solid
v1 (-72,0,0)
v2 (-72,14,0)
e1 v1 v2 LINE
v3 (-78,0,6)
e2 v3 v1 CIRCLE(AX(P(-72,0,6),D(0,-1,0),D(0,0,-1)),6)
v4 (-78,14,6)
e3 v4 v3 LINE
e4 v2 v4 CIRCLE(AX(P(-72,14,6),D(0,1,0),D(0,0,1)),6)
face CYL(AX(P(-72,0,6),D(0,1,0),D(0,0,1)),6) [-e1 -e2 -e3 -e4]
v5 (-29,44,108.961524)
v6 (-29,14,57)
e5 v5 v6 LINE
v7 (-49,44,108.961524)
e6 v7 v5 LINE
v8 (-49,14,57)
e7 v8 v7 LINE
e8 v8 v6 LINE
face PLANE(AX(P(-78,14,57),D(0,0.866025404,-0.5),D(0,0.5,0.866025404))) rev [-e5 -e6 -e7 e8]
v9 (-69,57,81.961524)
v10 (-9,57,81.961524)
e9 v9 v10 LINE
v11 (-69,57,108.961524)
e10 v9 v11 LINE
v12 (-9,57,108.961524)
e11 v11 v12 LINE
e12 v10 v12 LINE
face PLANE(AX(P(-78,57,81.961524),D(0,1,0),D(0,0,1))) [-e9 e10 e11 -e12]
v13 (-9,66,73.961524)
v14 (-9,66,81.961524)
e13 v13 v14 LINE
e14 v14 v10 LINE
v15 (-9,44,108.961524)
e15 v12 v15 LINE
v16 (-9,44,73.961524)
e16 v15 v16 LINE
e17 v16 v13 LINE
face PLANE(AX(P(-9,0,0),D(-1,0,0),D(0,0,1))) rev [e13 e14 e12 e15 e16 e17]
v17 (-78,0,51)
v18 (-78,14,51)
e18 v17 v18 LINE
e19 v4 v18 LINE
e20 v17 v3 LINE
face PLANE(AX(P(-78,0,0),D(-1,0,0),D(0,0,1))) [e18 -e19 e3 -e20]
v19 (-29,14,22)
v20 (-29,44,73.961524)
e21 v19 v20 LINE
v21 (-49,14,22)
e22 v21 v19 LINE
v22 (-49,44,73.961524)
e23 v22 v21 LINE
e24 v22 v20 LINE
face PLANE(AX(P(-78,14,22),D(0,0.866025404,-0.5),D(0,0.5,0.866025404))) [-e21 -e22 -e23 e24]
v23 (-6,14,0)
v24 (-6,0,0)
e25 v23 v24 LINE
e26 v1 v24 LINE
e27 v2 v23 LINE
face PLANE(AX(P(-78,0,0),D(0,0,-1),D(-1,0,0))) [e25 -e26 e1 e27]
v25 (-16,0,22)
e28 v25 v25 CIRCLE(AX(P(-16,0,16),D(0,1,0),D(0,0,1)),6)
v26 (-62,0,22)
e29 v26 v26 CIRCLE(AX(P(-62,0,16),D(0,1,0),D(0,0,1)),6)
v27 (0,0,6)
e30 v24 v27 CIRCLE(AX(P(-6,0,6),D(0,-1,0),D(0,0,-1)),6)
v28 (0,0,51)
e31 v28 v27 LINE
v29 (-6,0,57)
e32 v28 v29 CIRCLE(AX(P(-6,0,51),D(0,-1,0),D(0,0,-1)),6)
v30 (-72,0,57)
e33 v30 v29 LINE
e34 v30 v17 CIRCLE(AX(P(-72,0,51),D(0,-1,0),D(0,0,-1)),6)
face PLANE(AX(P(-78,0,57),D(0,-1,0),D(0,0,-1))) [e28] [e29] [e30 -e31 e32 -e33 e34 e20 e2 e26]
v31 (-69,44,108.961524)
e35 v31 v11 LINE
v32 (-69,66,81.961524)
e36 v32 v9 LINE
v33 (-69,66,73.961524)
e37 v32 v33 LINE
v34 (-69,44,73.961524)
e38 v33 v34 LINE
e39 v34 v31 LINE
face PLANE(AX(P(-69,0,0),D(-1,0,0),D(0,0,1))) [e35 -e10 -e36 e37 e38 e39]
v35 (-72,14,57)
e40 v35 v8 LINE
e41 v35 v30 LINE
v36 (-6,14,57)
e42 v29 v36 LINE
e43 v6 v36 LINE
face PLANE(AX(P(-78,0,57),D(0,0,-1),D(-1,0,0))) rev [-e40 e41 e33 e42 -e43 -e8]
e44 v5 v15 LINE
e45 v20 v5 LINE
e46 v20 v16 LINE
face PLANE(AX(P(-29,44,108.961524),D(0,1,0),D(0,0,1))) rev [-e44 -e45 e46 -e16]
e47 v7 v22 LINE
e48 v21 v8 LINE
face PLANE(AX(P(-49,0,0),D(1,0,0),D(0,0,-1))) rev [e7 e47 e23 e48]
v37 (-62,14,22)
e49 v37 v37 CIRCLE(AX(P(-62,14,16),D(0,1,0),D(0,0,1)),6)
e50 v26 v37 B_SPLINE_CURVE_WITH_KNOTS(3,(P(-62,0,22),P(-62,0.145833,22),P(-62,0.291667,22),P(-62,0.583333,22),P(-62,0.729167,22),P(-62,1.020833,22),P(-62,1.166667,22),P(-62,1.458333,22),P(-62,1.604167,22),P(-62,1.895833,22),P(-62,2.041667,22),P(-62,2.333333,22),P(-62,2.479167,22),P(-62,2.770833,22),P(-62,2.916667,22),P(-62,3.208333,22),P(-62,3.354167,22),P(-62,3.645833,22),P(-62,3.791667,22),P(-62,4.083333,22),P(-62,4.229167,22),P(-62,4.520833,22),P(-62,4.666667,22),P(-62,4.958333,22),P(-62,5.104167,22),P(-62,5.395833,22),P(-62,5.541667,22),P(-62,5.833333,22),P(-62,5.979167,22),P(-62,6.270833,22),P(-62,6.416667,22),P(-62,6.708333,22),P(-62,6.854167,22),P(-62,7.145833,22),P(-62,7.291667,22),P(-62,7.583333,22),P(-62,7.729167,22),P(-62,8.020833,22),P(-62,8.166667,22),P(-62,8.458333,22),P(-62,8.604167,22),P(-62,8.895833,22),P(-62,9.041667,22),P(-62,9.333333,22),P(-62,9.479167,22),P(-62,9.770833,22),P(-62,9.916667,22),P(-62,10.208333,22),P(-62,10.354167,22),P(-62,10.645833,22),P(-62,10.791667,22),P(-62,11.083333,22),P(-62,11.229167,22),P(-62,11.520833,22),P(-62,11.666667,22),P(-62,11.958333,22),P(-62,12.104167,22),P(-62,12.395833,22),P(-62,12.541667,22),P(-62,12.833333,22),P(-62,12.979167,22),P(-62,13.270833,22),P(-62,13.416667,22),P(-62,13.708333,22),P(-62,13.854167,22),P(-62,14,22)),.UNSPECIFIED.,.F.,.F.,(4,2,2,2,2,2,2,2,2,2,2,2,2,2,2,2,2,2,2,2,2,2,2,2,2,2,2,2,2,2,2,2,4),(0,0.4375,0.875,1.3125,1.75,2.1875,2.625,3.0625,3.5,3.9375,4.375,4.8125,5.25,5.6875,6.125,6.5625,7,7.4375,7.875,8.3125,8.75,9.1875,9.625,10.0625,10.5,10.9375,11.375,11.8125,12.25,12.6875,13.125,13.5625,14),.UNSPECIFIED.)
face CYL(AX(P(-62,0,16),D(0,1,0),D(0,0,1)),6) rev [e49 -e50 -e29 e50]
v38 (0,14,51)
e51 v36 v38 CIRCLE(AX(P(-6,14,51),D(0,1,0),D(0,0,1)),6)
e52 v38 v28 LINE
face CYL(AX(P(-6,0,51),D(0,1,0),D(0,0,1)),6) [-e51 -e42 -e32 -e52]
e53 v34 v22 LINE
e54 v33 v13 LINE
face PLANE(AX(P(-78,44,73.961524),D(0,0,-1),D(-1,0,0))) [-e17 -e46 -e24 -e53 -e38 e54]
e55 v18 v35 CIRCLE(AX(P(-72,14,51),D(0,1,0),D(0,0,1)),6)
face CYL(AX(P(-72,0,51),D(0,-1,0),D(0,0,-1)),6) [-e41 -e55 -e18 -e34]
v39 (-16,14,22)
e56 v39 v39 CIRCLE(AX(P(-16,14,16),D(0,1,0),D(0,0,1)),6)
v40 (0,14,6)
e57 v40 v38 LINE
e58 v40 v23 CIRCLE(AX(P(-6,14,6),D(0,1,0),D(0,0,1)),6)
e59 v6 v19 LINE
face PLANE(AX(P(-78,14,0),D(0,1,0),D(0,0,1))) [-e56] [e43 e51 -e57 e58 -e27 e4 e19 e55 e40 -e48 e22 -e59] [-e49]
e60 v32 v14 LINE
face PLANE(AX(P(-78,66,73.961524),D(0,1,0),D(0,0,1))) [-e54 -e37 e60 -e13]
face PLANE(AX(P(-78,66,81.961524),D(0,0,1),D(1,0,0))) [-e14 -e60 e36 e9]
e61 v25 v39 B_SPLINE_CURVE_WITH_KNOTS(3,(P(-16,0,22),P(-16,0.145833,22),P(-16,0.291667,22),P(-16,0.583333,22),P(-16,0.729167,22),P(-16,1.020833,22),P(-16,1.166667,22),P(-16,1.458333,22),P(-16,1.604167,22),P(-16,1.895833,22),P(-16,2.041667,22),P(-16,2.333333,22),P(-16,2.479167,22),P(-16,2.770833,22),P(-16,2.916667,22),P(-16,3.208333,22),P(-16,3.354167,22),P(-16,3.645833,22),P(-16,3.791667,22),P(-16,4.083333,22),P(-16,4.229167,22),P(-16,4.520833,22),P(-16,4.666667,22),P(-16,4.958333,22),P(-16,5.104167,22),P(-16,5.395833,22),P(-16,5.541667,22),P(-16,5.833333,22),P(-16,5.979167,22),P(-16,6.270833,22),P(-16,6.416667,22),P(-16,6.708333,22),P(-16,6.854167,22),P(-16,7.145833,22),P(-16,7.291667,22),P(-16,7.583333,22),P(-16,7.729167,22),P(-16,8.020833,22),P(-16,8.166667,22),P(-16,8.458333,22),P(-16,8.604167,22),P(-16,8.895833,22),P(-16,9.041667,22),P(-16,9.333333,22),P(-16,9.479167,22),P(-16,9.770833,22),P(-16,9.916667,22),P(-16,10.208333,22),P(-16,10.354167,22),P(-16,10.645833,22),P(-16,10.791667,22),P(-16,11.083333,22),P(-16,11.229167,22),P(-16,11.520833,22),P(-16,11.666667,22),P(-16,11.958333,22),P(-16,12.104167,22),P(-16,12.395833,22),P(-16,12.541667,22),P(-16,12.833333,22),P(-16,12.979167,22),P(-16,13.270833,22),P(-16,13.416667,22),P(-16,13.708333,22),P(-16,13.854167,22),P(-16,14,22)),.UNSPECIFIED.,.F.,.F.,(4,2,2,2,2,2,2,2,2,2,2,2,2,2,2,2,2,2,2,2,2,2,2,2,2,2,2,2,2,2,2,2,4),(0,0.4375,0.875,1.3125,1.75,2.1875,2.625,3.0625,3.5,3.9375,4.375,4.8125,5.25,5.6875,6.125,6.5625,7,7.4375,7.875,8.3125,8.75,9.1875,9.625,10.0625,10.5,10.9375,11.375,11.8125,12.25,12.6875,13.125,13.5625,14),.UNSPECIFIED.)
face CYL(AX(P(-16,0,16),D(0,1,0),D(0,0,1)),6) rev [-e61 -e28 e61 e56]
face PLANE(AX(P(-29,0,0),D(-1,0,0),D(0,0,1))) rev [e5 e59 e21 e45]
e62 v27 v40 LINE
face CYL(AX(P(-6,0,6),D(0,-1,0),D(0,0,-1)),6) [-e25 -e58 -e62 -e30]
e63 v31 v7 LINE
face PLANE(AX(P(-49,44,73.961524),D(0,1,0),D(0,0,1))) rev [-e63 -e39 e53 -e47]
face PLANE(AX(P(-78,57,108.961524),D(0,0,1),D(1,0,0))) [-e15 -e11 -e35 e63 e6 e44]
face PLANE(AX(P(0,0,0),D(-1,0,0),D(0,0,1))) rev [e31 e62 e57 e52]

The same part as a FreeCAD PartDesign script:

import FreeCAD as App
import Part
import Sketcher
from FreeCAD import Vector
Q = App.Units.Quantity


def edges_at(feature, points):
    """Names of the edges that pass closest to the given points."""
    edges = feature.Shape.Edges
    near = lambda p: min(range(len(edges)), key=lambda i: edges[i].distToShape(Part.Vertex(*p))[0])
    return sorted({f"Edge{near(p) + 1}" for p in points})


def add_polygon(sketch, points):
    """Adds a closed chain of lines whose ends are joined by coincident constraints."""
    first, n = sketch.GeometryCount, len(points)
    for a, b in zip(points, points[1:] + points[:1]):
        sketch.addGeometry(Part.LineSegment(App.Vector(*a, 0), App.Vector(*b, 0)), False)
    for i in range(n):
        sketch.addConstraint(Sketcher.Constraint("Coincident", first + i, 2, first + (i + 1) % n, 1))

doc = App.newDocument("Part")
body = doc.addObject("PartDesign::Body", "Body")

# Sketch on YZ plane
sketch1 = body.newObject("Sketcher::SketchObject", "Sketch")
sketch1.AttachmentSupport = (doc.getObject("YZ_Plane"), [""])
sketch1.MapMode = "FlatFace"
add_polygon(sketch1, [(0, 57), (0, 0), (14, 0), (14, 22), (44, 73.961524), (66, 73.961524), (66, 81.961524), (57, 81.961524), (57, 108.961524), (44, 108.961524), (14, 57)])  # lines 0-10
sketch1.addConstraint([
    Sketcher.Constraint("Vertical", 0),
    Sketcher.Constraint("Horizontal", 1),
    Sketcher.Constraint("Vertical", 2),
    Sketcher.Constraint("Horizontal", 4),
    Sketcher.Constraint("Vertical", 5),
    Sketcher.Constraint("Horizontal", 6),
    Sketcher.Constraint("Vertical", 7),
    Sketcher.Constraint("Horizontal", 8),
    Sketcher.Constraint("Horizontal", 10),
    Sketcher.Constraint("Coincident", 0, 2, -1, 1),
    Sketcher.Constraint("Parallel", 3, 9),
    Sketcher.Constraint("Vertical", 3, 2, 8, 2),
    Sketcher.Constraint("Vertical", 2, 2, 9, 2),
    Sketcher.Constraint("Equal", 4, 2),
    Sketcher.Constraint("DistanceX", 1, 1, 1, 2, Q("14 mm")),
    Sketcher.Constraint("DistanceX", 4, 1, 4, 2, Q("22 mm")),
    Sketcher.Constraint("DistanceX", 6, 2, 6, 1, Q("9 mm")),
    Sketcher.Constraint("DistanceY", 0, 2, 0, 1, Q("57 mm")),
    Sketcher.Constraint("DistanceY", 5, 1, 5, 2, Q("8 mm")),
    Sketcher.Constraint("Angle", 3, Q("60 deg")),
    Sketcher.Constraint("Distance", 3, Q("60 mm")),
])
pad1 = body.newObject("PartDesign::Pad", "Pad")
pad1.Profile = sketch1
pad1.Length = 78
pad1.Reversed = True

# Sketch on YZ plane
sketch2 = body.newObject("Sketcher::SketchObject", "Sketch001")
sketch2.AttachmentSupport = (doc.getObject("YZ_Plane"), [""])
sketch2.MapMode = "FlatFace"
add_polygon(sketch2, [(14, 57), (14, 22), (44, 73.961524), (44, 108.961524)])  # lines 0-3
sketch2.addConstraint([
    Sketcher.Constraint("Vertical", 0),
    Sketcher.Constraint("Vertical", 2),
    Sketcher.Constraint("Parallel", 1, 3),
    Sketcher.Constraint("DistanceY", 0, 2, 0, 1, Q("35 mm")),
    Sketcher.Constraint("Angle", 1, Q("60 deg")),
    Sketcher.Constraint("Distance", 1, Q("60 mm")),
    Sketcher.Constraint("DistanceX", -1, 1, 0, 2, Q("14 mm")),
    Sketcher.Constraint("DistanceY", -1, 1, 0, 2, Q("22 mm")),
])
pocket1 = body.newObject("PartDesign::Pocket", "Pocket")
pocket1.Profile = sketch2
pocket1.Length = 29

# Sketch on YZ plane
sketch3 = body.newObject("Sketcher::SketchObject", "Sketch002")
sketch3.AttachmentSupport = (doc.getObject("YZ_Plane"), [""])
sketch3.MapMode = "FlatFace"
sketch3.AttachmentOffset = App.Placement(Vector(0, 0, -78), App.Rotation())
add_polygon(sketch3, [(14, 22), (14, 57), (44, 108.961524), (44, 73.961524)])  # lines 0-3
sketch3.addConstraint([
    Sketcher.Constraint("Vertical", 0),
    Sketcher.Constraint("Vertical", 2),
    Sketcher.Constraint("Parallel", 1, 3),
    Sketcher.Constraint("DistanceY", 0, 1, 0, 2, Q("35 mm")),
    Sketcher.Constraint("Angle", 1, Q("60 deg")),
    Sketcher.Constraint("Distance", 1, Q("60 mm")),
    Sketcher.Constraint("DistanceX", -1, 1, 0, 2, Q("14 mm")),
    Sketcher.Constraint("DistanceY", -1, 1, 0, 2, Q("57 mm")),
])
pocket2 = body.newObject("PartDesign::Pocket", "Pocket001")
pocket2.Profile = sketch3
pocket2.Length = 29
pocket2.Reversed = True

# Sketch on YZ plane
sketch4 = body.newObject("Sketcher::SketchObject", "Sketch003")
sketch4.AttachmentSupport = (doc.getObject("YZ_Plane"), [""])
sketch4.MapMode = "FlatFace"
sketch4.AttachmentOffset = App.Placement(Vector(0, 0, -78), App.Rotation())
add_polygon(sketch4, [(66, 73.961524), (44, 73.961524), (44, 108.961524), (66, 108.961524)])  # lines 0-3
sketch4.addConstraint([
    Sketcher.Constraint("Horizontal", 0),
    Sketcher.Constraint("Vertical", 1),
    Sketcher.Constraint("Horizontal", 2),
    Sketcher.Constraint("Vertical", 3),
    Sketcher.Constraint("DistanceX", 0, 2, 0, 1, Q("22 mm")),
    Sketcher.Constraint("DistanceY", 1, 1, 1, 2, Q("35 mm")),
    Sketcher.Constraint("DistanceX", -1, 1, 0, 2, Q("44 mm")),
    Sketcher.Constraint("DistanceY", -1, 1, 0, 2, Q("73.961524 mm")),
])
pocket3 = body.newObject("PartDesign::Pocket", "Pocket002")
pocket3.Profile = sketch4
pocket3.Length = 9
pocket3.Reversed = True

# Sketch on YZ plane
sketch5 = body.newObject("Sketcher::SketchObject", "Sketch004")
sketch5.AttachmentSupport = (doc.getObject("YZ_Plane"), [""])
sketch5.MapMode = "FlatFace"
add_polygon(sketch5, [(66, 108.961524), (44, 108.961524), (44, 73.961524), (66, 73.961524)])  # lines 0-3
sketch5.addConstraint([
    Sketcher.Constraint("Horizontal", 0),
    Sketcher.Constraint("Vertical", 1),
    Sketcher.Constraint("Horizontal", 2),
    Sketcher.Constraint("Vertical", 3),
    Sketcher.Constraint("DistanceX", 0, 2, 0, 1, Q("22 mm")),
    Sketcher.Constraint("DistanceY", 1, 2, 1, 1, Q("35 mm")),
    Sketcher.Constraint("DistanceX", -1, 1, 0, 2, Q("44 mm")),
    Sketcher.Constraint("DistanceY", -1, 1, 0, 2, Q("108.961524 mm")),
])
pocket4 = body.newObject("PartDesign::Pocket", "Pocket003")
pocket4.Profile = sketch5
pocket4.Length = 9

# Sketch on XZ plane
sketch6 = body.newObject("Sketcher::SketchObject", "Sketch005")
sketch6.AttachmentSupport = (doc.getObject("XZ_Plane"), [""])
sketch6.MapMode = "FlatFace"
sketch6.AttachmentOffset = App.Placement(Vector(0, 0, -14), App.Rotation())
sketch6.addGeometry([
    Part.Circle(Vector(-16, 16, 0), Vector(0, 0, 1), 6),
    Part.Circle(Vector(-62, 16, 0), Vector(0, 0, 1), 6),
], False)
sketch6.addConstraint([
    Sketcher.Constraint("Equal", 0, 1),
    Sketcher.Constraint("Horizontal", 0, 3, 1, 3),
    Sketcher.Constraint("Diameter", 0, Q("12 mm")),
    Sketcher.Constraint("DistanceX", 0, 3, -1, 1, Q("16 mm")),
    Sketcher.Constraint("DistanceY", -1, 1, 0, 3, Q("16 mm")),
    Sketcher.Constraint("DistanceX", 1, 3, -1, 1, Q("62 mm")),
])
pocket5 = body.newObject("PartDesign::Pocket", "Pocket004")
pocket5.Profile = sketch6
pocket5.Type = "ThroughAll"
pocket5.Reversed = True
doc.recompute()

fillet = body.newObject("PartDesign::Fillet", "Fillet")
fillet.Base = (pocket5, edges_at(pocket5, [
    (0, 7, 0),
    (0, 7, 57),
    (-78, 7, 57),
    (-78, 7, 0),
]))
fillet.Radius = 6

doc.recompute()
